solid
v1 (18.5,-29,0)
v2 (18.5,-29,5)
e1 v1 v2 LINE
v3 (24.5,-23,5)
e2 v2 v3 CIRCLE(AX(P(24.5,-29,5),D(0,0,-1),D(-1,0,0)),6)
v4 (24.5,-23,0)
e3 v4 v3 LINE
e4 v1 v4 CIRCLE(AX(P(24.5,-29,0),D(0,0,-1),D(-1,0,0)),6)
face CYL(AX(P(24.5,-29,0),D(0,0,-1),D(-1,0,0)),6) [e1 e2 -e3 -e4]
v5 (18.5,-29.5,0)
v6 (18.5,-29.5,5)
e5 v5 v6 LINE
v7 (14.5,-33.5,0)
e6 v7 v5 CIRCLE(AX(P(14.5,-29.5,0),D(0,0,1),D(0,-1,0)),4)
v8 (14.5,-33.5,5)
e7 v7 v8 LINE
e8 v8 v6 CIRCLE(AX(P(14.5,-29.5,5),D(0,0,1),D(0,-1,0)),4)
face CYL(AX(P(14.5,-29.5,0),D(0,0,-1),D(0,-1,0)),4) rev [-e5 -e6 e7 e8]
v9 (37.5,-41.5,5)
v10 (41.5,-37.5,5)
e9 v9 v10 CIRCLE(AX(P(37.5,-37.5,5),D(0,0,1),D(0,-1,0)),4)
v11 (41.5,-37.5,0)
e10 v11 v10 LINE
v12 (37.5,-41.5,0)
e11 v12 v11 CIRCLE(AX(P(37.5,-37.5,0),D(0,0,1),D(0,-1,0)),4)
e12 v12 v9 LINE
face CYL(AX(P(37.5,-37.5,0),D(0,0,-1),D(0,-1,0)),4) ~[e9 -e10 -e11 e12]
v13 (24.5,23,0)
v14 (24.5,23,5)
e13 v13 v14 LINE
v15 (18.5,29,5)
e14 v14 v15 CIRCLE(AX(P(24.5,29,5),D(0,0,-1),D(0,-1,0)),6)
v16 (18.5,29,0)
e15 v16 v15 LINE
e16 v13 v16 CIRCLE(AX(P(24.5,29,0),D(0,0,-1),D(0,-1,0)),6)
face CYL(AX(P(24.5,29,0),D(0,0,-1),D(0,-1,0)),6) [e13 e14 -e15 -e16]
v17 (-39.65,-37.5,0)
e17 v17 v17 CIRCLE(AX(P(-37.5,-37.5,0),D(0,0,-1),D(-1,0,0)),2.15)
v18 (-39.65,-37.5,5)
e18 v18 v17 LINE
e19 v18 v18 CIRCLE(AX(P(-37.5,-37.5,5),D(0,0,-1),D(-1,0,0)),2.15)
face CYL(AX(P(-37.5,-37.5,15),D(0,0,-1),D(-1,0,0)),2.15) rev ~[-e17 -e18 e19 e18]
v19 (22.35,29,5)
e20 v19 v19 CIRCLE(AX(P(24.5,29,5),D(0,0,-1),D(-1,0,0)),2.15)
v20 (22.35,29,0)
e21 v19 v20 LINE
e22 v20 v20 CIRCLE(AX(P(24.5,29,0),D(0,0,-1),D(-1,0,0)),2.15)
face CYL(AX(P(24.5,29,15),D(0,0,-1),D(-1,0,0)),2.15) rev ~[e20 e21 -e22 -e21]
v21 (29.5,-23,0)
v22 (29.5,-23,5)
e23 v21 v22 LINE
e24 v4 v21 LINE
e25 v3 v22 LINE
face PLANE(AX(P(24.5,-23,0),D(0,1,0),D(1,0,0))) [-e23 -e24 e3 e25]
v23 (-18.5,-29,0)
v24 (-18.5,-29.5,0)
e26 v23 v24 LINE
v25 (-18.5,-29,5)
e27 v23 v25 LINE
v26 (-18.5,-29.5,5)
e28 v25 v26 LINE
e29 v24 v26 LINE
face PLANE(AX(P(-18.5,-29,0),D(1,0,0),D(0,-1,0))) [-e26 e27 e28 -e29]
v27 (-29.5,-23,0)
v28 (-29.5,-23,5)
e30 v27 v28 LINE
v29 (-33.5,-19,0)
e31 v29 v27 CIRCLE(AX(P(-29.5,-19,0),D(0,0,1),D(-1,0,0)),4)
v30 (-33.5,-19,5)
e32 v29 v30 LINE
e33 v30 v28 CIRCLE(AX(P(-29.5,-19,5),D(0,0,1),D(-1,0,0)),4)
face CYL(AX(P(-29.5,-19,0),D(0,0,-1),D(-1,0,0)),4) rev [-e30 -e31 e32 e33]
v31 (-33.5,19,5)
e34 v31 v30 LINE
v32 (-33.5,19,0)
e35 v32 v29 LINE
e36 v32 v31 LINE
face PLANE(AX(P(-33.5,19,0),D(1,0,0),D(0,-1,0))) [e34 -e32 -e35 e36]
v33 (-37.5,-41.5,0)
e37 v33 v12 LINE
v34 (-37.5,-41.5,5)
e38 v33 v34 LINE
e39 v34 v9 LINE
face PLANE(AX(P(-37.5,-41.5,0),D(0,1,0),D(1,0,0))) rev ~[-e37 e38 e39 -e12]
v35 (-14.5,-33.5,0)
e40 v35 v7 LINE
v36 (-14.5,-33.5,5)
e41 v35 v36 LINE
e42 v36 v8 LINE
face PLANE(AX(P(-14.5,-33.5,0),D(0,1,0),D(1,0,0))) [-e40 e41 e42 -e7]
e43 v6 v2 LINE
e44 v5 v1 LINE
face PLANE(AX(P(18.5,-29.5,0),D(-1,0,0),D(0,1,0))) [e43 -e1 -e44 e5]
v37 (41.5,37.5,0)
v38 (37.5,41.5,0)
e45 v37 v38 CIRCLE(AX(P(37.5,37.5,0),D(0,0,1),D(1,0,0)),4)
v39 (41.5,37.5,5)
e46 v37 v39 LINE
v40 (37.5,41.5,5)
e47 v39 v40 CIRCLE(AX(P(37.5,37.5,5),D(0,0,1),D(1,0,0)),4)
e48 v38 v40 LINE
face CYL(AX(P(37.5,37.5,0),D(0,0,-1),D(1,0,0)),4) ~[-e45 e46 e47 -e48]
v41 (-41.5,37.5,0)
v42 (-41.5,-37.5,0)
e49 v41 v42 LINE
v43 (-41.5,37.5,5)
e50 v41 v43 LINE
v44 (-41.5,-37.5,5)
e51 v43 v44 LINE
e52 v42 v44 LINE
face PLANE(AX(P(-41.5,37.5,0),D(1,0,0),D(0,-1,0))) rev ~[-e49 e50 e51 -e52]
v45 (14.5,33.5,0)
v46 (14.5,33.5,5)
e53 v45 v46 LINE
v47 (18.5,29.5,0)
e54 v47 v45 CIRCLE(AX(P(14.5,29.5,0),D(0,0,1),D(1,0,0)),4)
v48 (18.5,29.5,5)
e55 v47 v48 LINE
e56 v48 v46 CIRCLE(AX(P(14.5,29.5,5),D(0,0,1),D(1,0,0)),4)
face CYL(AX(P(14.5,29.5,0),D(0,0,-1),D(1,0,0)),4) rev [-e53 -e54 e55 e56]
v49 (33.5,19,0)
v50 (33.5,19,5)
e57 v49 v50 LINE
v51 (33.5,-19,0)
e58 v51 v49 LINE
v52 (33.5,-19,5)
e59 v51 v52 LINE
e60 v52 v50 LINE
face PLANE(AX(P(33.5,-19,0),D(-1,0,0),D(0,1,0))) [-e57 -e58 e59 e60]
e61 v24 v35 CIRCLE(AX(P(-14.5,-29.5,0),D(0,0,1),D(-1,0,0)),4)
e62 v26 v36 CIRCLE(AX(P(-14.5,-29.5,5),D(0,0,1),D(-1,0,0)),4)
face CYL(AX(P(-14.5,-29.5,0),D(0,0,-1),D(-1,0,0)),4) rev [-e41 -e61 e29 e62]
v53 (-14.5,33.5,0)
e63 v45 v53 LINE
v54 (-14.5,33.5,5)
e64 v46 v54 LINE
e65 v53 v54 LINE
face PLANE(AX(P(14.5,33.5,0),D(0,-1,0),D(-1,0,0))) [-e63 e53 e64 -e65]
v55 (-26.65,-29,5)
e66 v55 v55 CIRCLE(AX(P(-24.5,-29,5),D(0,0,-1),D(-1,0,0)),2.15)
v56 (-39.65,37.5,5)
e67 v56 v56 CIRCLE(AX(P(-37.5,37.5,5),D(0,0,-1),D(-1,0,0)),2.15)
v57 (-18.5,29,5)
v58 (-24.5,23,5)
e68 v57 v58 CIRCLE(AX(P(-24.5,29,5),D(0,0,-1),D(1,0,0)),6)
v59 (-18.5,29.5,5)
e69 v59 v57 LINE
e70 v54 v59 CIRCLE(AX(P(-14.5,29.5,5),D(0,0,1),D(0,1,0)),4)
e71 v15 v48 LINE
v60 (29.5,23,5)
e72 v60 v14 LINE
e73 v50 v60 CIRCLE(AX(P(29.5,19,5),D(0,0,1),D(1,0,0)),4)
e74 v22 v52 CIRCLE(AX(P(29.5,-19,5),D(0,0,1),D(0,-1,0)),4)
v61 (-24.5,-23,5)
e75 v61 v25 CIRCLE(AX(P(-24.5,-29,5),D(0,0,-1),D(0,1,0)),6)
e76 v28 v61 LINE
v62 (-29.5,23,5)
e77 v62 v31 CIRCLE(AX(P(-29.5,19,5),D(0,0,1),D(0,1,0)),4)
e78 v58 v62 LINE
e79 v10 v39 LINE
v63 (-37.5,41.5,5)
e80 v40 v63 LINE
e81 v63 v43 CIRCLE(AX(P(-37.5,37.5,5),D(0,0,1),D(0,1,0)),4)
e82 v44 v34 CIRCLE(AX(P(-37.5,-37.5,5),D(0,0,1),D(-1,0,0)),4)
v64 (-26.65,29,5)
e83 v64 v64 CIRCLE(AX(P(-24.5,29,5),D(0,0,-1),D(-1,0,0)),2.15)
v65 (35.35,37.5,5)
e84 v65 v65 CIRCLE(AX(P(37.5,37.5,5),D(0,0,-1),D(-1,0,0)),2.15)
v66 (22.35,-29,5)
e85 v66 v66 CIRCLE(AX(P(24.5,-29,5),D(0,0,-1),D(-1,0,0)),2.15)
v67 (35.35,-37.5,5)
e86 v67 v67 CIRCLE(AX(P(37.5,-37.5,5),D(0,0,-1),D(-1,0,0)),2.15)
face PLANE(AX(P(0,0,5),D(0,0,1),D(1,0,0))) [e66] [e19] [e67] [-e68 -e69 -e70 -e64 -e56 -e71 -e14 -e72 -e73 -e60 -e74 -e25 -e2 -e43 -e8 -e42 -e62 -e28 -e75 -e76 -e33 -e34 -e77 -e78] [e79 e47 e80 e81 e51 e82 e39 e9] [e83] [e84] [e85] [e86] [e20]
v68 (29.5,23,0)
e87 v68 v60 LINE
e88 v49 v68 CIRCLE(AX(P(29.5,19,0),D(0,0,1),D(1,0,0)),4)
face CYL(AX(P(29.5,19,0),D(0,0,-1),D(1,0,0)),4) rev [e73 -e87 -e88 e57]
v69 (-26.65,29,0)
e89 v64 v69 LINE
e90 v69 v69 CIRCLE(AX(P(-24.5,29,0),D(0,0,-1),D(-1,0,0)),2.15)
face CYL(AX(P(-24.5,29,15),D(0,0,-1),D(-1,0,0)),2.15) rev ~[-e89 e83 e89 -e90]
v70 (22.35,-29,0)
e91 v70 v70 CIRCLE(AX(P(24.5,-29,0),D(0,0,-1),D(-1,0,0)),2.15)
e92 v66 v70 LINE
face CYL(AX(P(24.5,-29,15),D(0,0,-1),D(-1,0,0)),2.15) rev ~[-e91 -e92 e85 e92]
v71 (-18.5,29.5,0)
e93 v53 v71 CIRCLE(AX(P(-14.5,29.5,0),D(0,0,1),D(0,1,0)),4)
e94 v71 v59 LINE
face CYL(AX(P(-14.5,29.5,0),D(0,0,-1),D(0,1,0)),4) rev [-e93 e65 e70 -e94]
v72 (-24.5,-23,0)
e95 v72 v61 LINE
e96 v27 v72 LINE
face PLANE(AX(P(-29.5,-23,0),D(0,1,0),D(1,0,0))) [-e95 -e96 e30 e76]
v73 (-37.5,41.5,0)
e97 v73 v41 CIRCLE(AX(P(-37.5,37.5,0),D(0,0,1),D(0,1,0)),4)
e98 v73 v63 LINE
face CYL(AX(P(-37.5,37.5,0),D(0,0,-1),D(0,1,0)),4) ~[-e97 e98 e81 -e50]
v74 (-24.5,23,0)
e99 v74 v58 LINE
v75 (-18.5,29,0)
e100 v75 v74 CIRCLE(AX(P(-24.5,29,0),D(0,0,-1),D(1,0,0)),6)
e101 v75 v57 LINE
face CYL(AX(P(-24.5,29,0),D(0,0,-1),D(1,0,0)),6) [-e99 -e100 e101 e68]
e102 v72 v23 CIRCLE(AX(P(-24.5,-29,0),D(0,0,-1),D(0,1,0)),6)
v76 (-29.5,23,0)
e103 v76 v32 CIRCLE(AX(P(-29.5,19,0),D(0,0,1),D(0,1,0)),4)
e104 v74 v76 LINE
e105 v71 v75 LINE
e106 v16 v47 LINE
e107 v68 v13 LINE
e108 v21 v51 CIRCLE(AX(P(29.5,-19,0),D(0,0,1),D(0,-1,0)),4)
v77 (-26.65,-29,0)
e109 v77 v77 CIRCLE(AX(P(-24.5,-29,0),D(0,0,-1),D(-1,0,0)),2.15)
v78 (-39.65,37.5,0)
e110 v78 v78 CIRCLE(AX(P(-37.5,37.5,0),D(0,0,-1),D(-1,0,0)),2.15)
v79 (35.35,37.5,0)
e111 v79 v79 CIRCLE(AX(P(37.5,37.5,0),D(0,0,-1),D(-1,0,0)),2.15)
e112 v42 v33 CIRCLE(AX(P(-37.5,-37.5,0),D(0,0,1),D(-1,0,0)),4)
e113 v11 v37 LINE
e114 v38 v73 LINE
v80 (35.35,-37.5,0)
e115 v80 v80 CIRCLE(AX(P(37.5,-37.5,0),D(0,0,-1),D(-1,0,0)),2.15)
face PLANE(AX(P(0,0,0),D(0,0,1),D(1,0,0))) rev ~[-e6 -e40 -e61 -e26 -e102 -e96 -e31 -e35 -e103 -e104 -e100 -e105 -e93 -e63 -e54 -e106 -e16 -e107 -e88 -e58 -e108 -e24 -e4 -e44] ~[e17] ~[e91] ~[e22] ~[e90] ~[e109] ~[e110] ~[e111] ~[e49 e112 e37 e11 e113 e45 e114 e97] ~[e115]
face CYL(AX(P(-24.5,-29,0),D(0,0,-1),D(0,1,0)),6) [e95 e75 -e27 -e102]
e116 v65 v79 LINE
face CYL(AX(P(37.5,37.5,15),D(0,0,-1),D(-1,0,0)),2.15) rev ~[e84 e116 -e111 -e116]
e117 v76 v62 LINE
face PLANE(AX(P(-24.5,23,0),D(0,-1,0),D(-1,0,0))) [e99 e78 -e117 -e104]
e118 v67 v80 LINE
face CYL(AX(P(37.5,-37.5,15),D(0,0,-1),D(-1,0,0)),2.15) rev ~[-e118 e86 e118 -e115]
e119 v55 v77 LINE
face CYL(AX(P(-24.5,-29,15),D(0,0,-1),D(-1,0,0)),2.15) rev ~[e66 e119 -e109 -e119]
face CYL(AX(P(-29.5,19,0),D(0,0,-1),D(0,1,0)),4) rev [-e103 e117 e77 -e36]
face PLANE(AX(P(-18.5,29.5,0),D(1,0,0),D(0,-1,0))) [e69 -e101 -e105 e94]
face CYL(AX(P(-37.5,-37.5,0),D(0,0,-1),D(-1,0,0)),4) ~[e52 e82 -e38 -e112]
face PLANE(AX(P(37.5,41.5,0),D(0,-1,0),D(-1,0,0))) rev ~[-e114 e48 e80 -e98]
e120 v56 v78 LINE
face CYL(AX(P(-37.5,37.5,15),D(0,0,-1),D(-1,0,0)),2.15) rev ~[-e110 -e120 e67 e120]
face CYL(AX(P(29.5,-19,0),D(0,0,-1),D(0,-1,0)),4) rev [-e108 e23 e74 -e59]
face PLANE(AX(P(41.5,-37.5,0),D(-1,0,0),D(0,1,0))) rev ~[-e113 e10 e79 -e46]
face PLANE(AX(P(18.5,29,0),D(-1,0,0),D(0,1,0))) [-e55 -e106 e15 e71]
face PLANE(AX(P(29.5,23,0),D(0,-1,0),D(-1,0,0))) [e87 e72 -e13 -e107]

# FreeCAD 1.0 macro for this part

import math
import FreeCAD as App
import Part
import Sketcher

V = App.Vector
Q = App.Units.Quantity

doc = App.newDocument("Part")
body = doc.addObject("PartDesign::Body", "Body")

# Sketch on XY plane
sketch1 = doc.addObject("Sketcher::SketchObject", "Sketch")
body.addObject(sketch1)
sketch1.AttachmentSupport = (doc.XY_Plane, [""])
sketch1.MapMode = "FlatFace"
sketch1.addGeometry([
    Part.LineSegment(V(-37.5, -41.5, 0), V(37.5, -41.5, 0)),  # 0
    Part.ArcOfCircle(Part.Circle(V(37.5, -37.5, 0), V(0, 0, 1), 4), math.radians(-90), math.radians(0)),  # 1
    Part.LineSegment(V(41.5, -37.5, 0), V(41.5, 37.5, 0)),  # 2
    Part.ArcOfCircle(Part.Circle(V(37.5, 37.5, 0), V(0, 0, 1), 4), math.radians(0), math.radians(90)),  # 3
    Part.LineSegment(V(37.5, 41.5, 0), V(-37.5, 41.5, 0)),  # 4
    Part.ArcOfCircle(Part.Circle(V(-37.5, 37.5, 0), V(0, 0, 1), 4), math.radians(90), math.radians(180)),  # 5
    Part.LineSegment(V(-41.5, 37.5, 0), V(-41.5, -37.5, 0)),  # 6
    Part.ArcOfCircle(Part.Circle(V(-37.5, -37.5, 0), V(0, 0, 1), 4), math.radians(180), math.radians(270)),  # 7
    Part.LineSegment(V(14.5, -33.5, 0), V(-14.5, -33.5, 0)),  # 8
    Part.ArcOfCircle(Part.Circle(V(-14.5, -29.5, 0), V(0, 0, 1), 4), math.radians(180), math.radians(270)),  # 9
    Part.LineSegment(V(-18.5, -29.5, 0), V(-18.5, -29, 0)),  # 10
    Part.ArcOfCircle(Part.Circle(V(-24.5, -29, 0), V(0, 0, 1), 6), math.radians(0), math.radians(90)),  # 11
    Part.LineSegment(V(-24.5, -23, 0), V(-29.5, -23, 0)),  # 12
    Part.ArcOfCircle(Part.Circle(V(-29.5, -19, 0), V(0, 0, 1), 4), math.radians(180), math.radians(270)),  # 13
    Part.LineSegment(V(-33.5, -19, 0), V(-33.5, 19, 0)),  # 14
    Part.ArcOfCircle(Part.Circle(V(-29.5, 19, 0), V(0, 0, 1), 4), math.radians(90), math.radians(180)),  # 15
    Part.LineSegment(V(-29.5, 23, 0), V(-24.5, 23, 0)),  # 16
    Part.ArcOfCircle(Part.Circle(V(-24.5, 29, 0), V(0, 0, 1), 6), math.radians(-90), math.radians(0)),  # 17
    Part.LineSegment(V(-18.5, 29, 0), V(-18.5, 29.5, 0)),  # 18
    Part.ArcOfCircle(Part.Circle(V(-14.5, 29.5, 0), V(0, 0, 1), 4), math.radians(90), math.radians(180)),  # 19
    Part.LineSegment(V(-14.5, 33.5, 0), V(14.5, 33.5, 0)),  # 20
    Part.ArcOfCircle(Part.Circle(V(14.5, 29.5, 0), V(0, 0, 1), 4), math.radians(0), math.radians(90)),  # 21
    Part.LineSegment(V(18.5, 29.5, 0), V(18.5, 29, 0)),  # 22
    Part.ArcOfCircle(Part.Circle(V(24.5, 29, 0), V(0, 0, 1), 6), math.radians(180), math.radians(270)),  # 23
    Part.LineSegment(V(24.5, 23, 0), V(29.5, 23, 0)),  # 24
    Part.ArcOfCircle(Part.Circle(V(29.5, 19, 0), V(0, 0, 1), 4), math.radians(0), math.radians(90)),  # 25
    Part.LineSegment(V(33.5, 19, 0), V(33.5, -19, 0)),  # 26
    Part.ArcOfCircle(Part.Circle(V(29.5, -19, 0), V(0, 0, 1), 4), math.radians(-90), math.radians(0)),  # 27
    Part.LineSegment(V(29.5, -23, 0), V(24.5, -23, 0)),  # 28
    Part.ArcOfCircle(Part.Circle(V(24.5, -29, 0), V(0, 0, 1), 6), math.radians(90), math.radians(180)),  # 29
    Part.LineSegment(V(18.5, -29, 0), V(18.5, -29.5, 0)),  # 30
    Part.ArcOfCircle(Part.Circle(V(14.5, -29.5, 0), V(0, 0, 1), 4), math.radians(-90), math.radians(0)),  # 31
], False)
sketch1.addConstraint([
    Sketcher.Constraint("Tangent", 0, 2, 1, 1),
    Sketcher.Constraint("Tangent", 1, 2, 2, 1),
    Sketcher.Constraint("Tangent", 2, 2, 3, 1),
    Sketcher.Constraint("Tangent", 3, 2, 4, 1),
    Sketcher.Constraint("Tangent", 4, 2, 5, 1),
    Sketcher.Constraint("Tangent", 5, 2, 6, 1),
    Sketcher.Constraint("Tangent", 6, 2, 7, 1),
    Sketcher.Constraint("Tangent", 7, 2, 0, 1),
    Sketcher.Constraint("Tangent", 8, 2, 9, 2),
    Sketcher.Constraint("Tangent", 9, 1, 10, 1),
    Sketcher.Constraint("Tangent", 10, 2, 11, 1),
    Sketcher.Constraint("Tangent", 11, 2, 12, 1),
    Sketcher.Constraint("Tangent", 12, 2, 13, 2),
    Sketcher.Constraint("Tangent", 13, 1, 14, 1),
    Sketcher.Constraint("Tangent", 14, 2, 15, 2),
    Sketcher.Constraint("Tangent", 15, 1, 16, 1),
    Sketcher.Constraint("Tangent", 16, 2, 17, 1),
    Sketcher.Constraint("Tangent", 17, 2, 18, 1),
    Sketcher.Constraint("Tangent", 18, 2, 19, 2),
    Sketcher.Constraint("Tangent", 19, 1, 20, 1),
    Sketcher.Constraint("Tangent", 20, 2, 21, 2),
    Sketcher.Constraint("Tangent", 21, 1, 22, 1),
    Sketcher.Constraint("Tangent", 22, 2, 23, 1),
    Sketcher.Constraint("Tangent", 23, 2, 24, 1),
    Sketcher.Constraint("Tangent", 24, 2, 25, 2),
    Sketcher.Constraint("Tangent", 25, 1, 26, 1),
    Sketcher.Constraint("Tangent", 26, 2, 27, 2),
    Sketcher.Constraint("Tangent", 27, 1, 28, 1),
    Sketcher.Constraint("Tangent", 28, 2, 29, 1),
    Sketcher.Constraint("Tangent", 29, 2, 30, 1),
    Sketcher.Constraint("Tangent", 30, 2, 31, 2),
    Sketcher.Constraint("Tangent", 31, 1, 8, 1),
    Sketcher.Constraint("Horizontal", 0),
    Sketcher.Constraint("Vertical", 2),
    Sketcher.Constraint("Horizontal", 4),
    Sketcher.Constraint("Vertical", 6),
    Sketcher.Constraint("Horizontal", 8),
    Sketcher.Constraint("Vertical", 10),
    Sketcher.Constraint("Horizontal", 12),
    Sketcher.Constraint("Vertical", 14),
    Sketcher.Constraint("Horizontal", 16),
    Sketcher.Constraint("Vertical", 18),
    Sketcher.Constraint("Horizontal", 20),
    Sketcher.Constraint("Vertical", 22),
    Sketcher.Constraint("Horizontal", 24),
    Sketcher.Constraint("Vertical", 26),
    Sketcher.Constraint("Horizontal", 28),
    Sketcher.Constraint("Vertical", 30),
    Sketcher.Constraint("Equal", 1, 3),
    Sketcher.Constraint("Equal", 3, 5),
    Sketcher.Constraint("Equal", 5, 7),
    Sketcher.Constraint("Equal", 7, 9),
    Sketcher.Constraint("Equal", 9, 13),
    Sketcher.Constraint("Equal", 13, 15),
    Sketcher.Constraint("Equal", 11, 17),
    Sketcher.Constraint("Equal", 15, 19),
    Sketcher.Constraint("Equal", 19, 21),
    Sketcher.Constraint("Equal", 17, 23),
    Sketcher.Constraint("Equal", 21, 25),
    Sketcher.Constraint("Equal", 25, 27),
    Sketcher.Constraint("Equal", 23, 29),
    Sketcher.Constraint("Equal", 27, 31),
    Sketcher.Constraint("Symmetric", 1, 3, 5, 3, -1, 1),
    Sketcher.Constraint("Symmetric", 9, 3, 21, 3, -1, 1),
    Sketcher.Constraint("Symmetric", 13, 3, 25, 3, -1, 1),
    Sketcher.Constraint("Symmetric", 17, 3, 29, 3, -1, 1),
    Sketcher.Constraint("Symmetric", 17, 3, 23, 3, -2),
    Sketcher.Constraint("Equal", 4, 2),
    Sketcher.Constraint("Radius", 1, Q("4 mm")),
    Sketcher.Constraint("Radius", 11, Q("6 mm")),
    Sketcher.Constraint("DistanceX", 0, 1, 0, 2, Q("75 mm")),
    Sketcher.Constraint("DistanceX", 8, 2, 8, 1, Q("29 mm")),
    Sketcher.Constraint("DistanceX", 12, 2, 12, 1, Q("5 mm")),
    Sketcher.Constraint("DistanceY", 14, 1, 14, 2, Q("38 mm")),
    Sketcher.Constraint("DistanceY", 10, 1, 10, 2, Q("0.5 mm")),
])
pad1 = doc.addObject("PartDesign::Pad", "Pad")
body.addObject(pad1)
pad1.Profile = sketch1
pad1.Length = 5

# Sketch on XY plane
sketch2 = doc.addObject("Sketcher::SketchObject", "Sketch001")
body.addObject(sketch2)
sketch2.AttachmentSupport = (doc.XY_Plane, [""])
sketch2.MapMode = "FlatFace"
sketch2.AttachmentOffset = App.Placement(V(0, 0, 5), App.Rotation())
sketch2.addGeometry([
    Part.Circle(V(-37.5, 37.5, 0), V(0, 0, 1), 2.1),  # 0
    Part.Circle(V(37.5, 37.5, 0), V(0, 0, 1), 2.1),  # 1
    Part.Circle(V(37.5, -37.5, 0), V(0, 0, 1), 2.1),  # 2
    Part.Circle(V(-37.5, -37.5, 0), V(0, 0, 1), 2.1),  # 3
    Part.Circle(V(-24.5, 29, 0), V(0, 0, 1), 2.1),  # 4
    Part.Circle(V(24.5, 29, 0), V(0, 0, 1), 2.1),  # 5
    Part.Circle(V(24.5, -29, 0), V(0, 0, 1), 2.1),  # 6
    Part.Circle(V(-24.5, -29, 0), V(0, 0, 1), 2.1),  # 7
], False)
sketch2.addConstraint([
    Sketcher.Constraint("Equal", 0, 1),
    Sketcher.Constraint("Equal", 1, 2),
    Sketcher.Constraint("Equal", 2, 3),
    Sketcher.Constraint("Equal", 3, 4),
    Sketcher.Constraint("Equal", 4, 5),
    Sketcher.Constraint("Equal", 5, 6),
    Sketcher.Constraint("Equal", 6, 7),
    Sketcher.Constraint("Symmetric", 0, 3, 2, 3, -1, 1),
    Sketcher.Constraint("Symmetric", 1, 3, 3, 3, -1, 1),
    Sketcher.Constraint("Symmetric", 4, 3, 6, 3, -1, 1),
    Sketcher.Constraint("Symmetric", 5, 3, 7, 3, -1, 1),
    Sketcher.Constraint("Symmetric", 0, 3, 1, 3, -2),
    Sketcher.Constraint("Symmetric", 4, 3, 5, 3, -2),
    Sketcher.Constraint("Diameter", 0, Q("4.3 mm")),
    Sketcher.Constraint("DistanceY", -1, 1, 4, 3, Q("29 mm")),
    Sketcher.Constraint("DistanceX", 0, 3, 1, 3, Q("75 mm")),
    Sketcher.Constraint("DistanceY", 2, 3, 1, 3, Q("75 mm")),
    Sketcher.Constraint("DistanceX", 0, 3, 4, 3, Q("13 mm")),
])
doc.recompute()
hole = doc.addObject("PartDesign::Hole", "Hole")
body.addObject(hole)
hole.Profile = sketch2
hole.ThreadType = "None"
hole.Diameter = 4.3
hole.DepthType = "Dimension"
hole.Depth = 10
hole.DrillPoint = "Angled"
hole.DrillPointAngle = 118

doc.recompute()
